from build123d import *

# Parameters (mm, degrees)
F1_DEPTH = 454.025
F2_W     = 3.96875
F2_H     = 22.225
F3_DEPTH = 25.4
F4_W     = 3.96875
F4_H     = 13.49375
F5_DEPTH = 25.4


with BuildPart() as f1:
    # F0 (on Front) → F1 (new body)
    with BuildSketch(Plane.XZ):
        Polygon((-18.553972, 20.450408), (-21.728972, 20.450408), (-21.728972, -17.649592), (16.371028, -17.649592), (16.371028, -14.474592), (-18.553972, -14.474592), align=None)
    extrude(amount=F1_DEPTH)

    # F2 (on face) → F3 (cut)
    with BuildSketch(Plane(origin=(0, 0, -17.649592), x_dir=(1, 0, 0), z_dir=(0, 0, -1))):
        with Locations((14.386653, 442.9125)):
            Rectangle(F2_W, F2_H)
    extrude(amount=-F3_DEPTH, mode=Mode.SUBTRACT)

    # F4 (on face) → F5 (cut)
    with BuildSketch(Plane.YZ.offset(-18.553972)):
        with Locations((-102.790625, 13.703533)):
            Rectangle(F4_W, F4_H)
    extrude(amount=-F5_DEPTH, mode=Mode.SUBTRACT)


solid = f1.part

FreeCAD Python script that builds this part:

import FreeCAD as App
import Part
import Sketcher
Q = App.Units.Quantity

doc = App.newDocument("Part")
body = doc.addObject("PartDesign::Body", "Body")

sketch1 = body.newObject("Sketcher::SketchObject", "Sketch")
sketch1.AttachmentSupport = (doc.getObject("XZ_Plane"), [""])
sketch1.MapMode = "FlatFace"
sketch1.addGeometry(Part.LineSegment(App.Vector(-18.6, 20.5, 0), App.Vector(-21.7, 20.5, 0)), False)
sketch1.addGeometry(Part.LineSegment(App.Vector(-21.7, 20.5, 0), App.Vector(-21.7, -17.6, 0)), False)
sketch1.addGeometry(Part.LineSegment(App.Vector(-21.7, -17.6, 0), App.Vector(16.4, -17.6, 0)), False)
sketch1.addGeometry(Part.LineSegment(App.Vector(16.4, -17.6, 0), App.Vector(16.4, -14.5, 0)), False)
sketch1.addGeometry(Part.LineSegment(App.Vector(16.4, -14.5, 0), App.Vector(-18.6, -14.5, 0)), False)
sketch1.addGeometry(Part.LineSegment(App.Vector(-18.6, -14.5, 0), App.Vector(-18.6, 20.5, 0)), False)
sketch1.addConstraint(Sketcher.Constraint("Coincident", 0, 2, 1, 1))
sketch1.addConstraint(Sketcher.Constraint("Coincident", 1, 2, 2, 1))
sketch1.addConstraint(Sketcher.Constraint("Coincident", 2, 2, 3, 1))
sketch1.addConstraint(Sketcher.Constraint("Coincident", 3, 2, 4, 1))
sketch1.addConstraint(Sketcher.Constraint("Coincident", 4, 2, 5, 1))
sketch1.addConstraint(Sketcher.Constraint("Coincident", 5, 2, 0, 1))
sketch1.addConstraint(Sketcher.Constraint("Horizontal", 0))
sketch1.addConstraint(Sketcher.Constraint("Vertical", 1))
sketch1.addConstraint(Sketcher.Constraint("Horizontal", 2))
sketch1.addConstraint(Sketcher.Constraint("Vertical", 3))
sketch1.addConstraint(Sketcher.Constraint("Horizontal", 4))
sketch1.addConstraint(Sketcher.Constraint("Vertical", 5))
sketch1.addConstraint(Sketcher.Constraint("Equal", 2, 1))
sketch1.addConstraint(Sketcher.Constraint("Equal", 0, 3))
sketch1.addConstraint(Sketcher.Constraint("DistanceX", 2, 1, 2, 2, Q("1.5 in")))
sketch1.addConstraint(Sketcher.Constraint("DistanceX", 0, 2, 0, 1, Q("0.125 in")))
sketch1.addConstraint(Sketcher.Constraint("DistanceX", 0, 2, -1, 1, 21.728972))
sketch1.addConstraint(Sketcher.Constraint("DistanceY", 1, 2, -1, 1, 17.649592))
pad1 = body.newObject("PartDesign::Pad", "Pad")
pad1.Profile = sketch1
pad1.Length = Q("17.875 in")

sketch2 = body.newObject("Sketcher::SketchObject", "Sketch001")
sketch2.AttachmentSupport = (doc.getObject("XY_Plane"), [""])
sketch2.MapMode = "FlatFace"
sketch2.AttachmentOffset = App.Placement(App.Vector(0, 0, -17.649592), App.Rotation())
sketch2.addGeometry(Part.LineSegment(App.Vector(12.4, -454, 0), App.Vector(12.4, -431.8, 0)), False)
sketch2.addGeometry(Part.LineSegment(App.Vector(12.4, -431.8, 0), App.Vector(16.4, -431.8, 0)), False)
sketch2.addGeometry(Part.LineSegment(App.Vector(16.4, -431.8, 0), App.Vector(16.4, -454, 0)), False)
sketch2.addGeometry(Part.LineSegment(App.Vector(16.4, -454, 0), App.Vector(12.4, -454, 0)), False)
sketch2.addConstraint(Sketcher.Constraint("Coincident", 0, 2, 1, 1))
sketch2.addConstraint(Sketcher.Constraint("Coincident", 1, 2, 2, 1))
sketch2.addConstraint(Sketcher.Constraint("Coincident", 2, 2, 3, 1))
sketch2.addConstraint(Sketcher.Constraint("Coincident", 3, 2, 0, 1))
sketch2.addConstraint(Sketcher.Constraint("Vertical", 0))
sketch2.addConstraint(Sketcher.Constraint("Horizontal", 1))
sketch2.addConstraint(Sketcher.Constraint("Vertical", 2))
sketch2.addConstraint(Sketcher.Constraint("Horizontal", 3))
sketch2.addConstraint(Sketcher.Constraint("DistanceY", 0, 2, -1, 1, Q("17 in")))
sketch2.addConstraint(Sketcher.Constraint("DistanceX", 1, 1, 1, 2, Q("0.15625 in")))
sketch2.addConstraint(Sketcher.Constraint("DistanceY", 0, 1, 0, 2, Q("0.875 in")))
sketch2.addConstraint(Sketcher.Constraint("DistanceX", -1, 1, 0, 2, 12.402278))
pocket1 = body.newObject("PartDesign::Pocket", "Pocket")
pocket1.Profile = sketch2
pocket1.Length = Q("1 in")
pocket1.Reversed = True

sketch3 = body.newObject("Sketcher::SketchObject", "Sketch002")
sketch3.AttachmentSupport = (doc.getObject("YZ_Plane"), [""])
sketch3.MapMode = "FlatFace"
sketch3.AttachmentOffset = App.Placement(App.Vector(0, 0, -18.553972), App.Rotation())
sketch3.addGeometry(Part.LineSegment(App.Vector(-104.8, 20.5, 0), App.Vector(-104.8, 7, 0)), False)
sketch3.addGeometry(Part.LineSegment(App.Vector(-104.8, 7, 0), App.Vector(-100.8, 7, 0)), False)
sketch3.addGeometry(Part.LineSegment(App.Vector(-100.8, 7, 0), App.Vector(-100.8, 20.5, 0)), False)
sketch3.addGeometry(Part.LineSegment(App.Vector(-100.8, 20.5, 0), App.Vector(-104.8, 20.5, 0)), False)
sketch3.addConstraint(Sketcher.Constraint("Coincident", 0, 2, 1, 1))
sketch3.addConstraint(Sketcher.Constraint("Coincident", 1, 2, 2, 1))
sketch3.addConstraint(Sketcher.Constraint("Coincident", 2, 2, 3, 1))
sketch3.addConstraint(Sketcher.Constraint("Coincident", 3, 2, 0, 1))
sketch3.addConstraint(Sketcher.Constraint("Vertical", 0))
sketch3.addConstraint(Sketcher.Constraint("Horizontal", 1))
sketch3.addConstraint(Sketcher.Constraint("Vertical", 2))
sketch3.addConstraint(Sketcher.Constraint("Horizontal", 3))
sketch3.addConstraint(Sketcher.Constraint("DistanceX", 1, 1, 1, 2, Q("0.15625 in")))
sketch3.addConstraint(Sketcher.Constraint("DistanceY", 0, 2, 0, 1, Q("0.53125 in")))
sketch3.addConstraint(Sketcher.Constraint("DistanceX", 0, 2, -1, 1, Q("4.125 in")))
sketch3.addConstraint(Sketcher.Constraint("DistanceY", -1, 1, 0, 2, 6.956658))
pocket2 = body.newObject("PartDesign::Pocket", "Pocket001")
pocket2.Profile = sketch3
pocket2.Length = Q("1 in")

doc.recompute()
